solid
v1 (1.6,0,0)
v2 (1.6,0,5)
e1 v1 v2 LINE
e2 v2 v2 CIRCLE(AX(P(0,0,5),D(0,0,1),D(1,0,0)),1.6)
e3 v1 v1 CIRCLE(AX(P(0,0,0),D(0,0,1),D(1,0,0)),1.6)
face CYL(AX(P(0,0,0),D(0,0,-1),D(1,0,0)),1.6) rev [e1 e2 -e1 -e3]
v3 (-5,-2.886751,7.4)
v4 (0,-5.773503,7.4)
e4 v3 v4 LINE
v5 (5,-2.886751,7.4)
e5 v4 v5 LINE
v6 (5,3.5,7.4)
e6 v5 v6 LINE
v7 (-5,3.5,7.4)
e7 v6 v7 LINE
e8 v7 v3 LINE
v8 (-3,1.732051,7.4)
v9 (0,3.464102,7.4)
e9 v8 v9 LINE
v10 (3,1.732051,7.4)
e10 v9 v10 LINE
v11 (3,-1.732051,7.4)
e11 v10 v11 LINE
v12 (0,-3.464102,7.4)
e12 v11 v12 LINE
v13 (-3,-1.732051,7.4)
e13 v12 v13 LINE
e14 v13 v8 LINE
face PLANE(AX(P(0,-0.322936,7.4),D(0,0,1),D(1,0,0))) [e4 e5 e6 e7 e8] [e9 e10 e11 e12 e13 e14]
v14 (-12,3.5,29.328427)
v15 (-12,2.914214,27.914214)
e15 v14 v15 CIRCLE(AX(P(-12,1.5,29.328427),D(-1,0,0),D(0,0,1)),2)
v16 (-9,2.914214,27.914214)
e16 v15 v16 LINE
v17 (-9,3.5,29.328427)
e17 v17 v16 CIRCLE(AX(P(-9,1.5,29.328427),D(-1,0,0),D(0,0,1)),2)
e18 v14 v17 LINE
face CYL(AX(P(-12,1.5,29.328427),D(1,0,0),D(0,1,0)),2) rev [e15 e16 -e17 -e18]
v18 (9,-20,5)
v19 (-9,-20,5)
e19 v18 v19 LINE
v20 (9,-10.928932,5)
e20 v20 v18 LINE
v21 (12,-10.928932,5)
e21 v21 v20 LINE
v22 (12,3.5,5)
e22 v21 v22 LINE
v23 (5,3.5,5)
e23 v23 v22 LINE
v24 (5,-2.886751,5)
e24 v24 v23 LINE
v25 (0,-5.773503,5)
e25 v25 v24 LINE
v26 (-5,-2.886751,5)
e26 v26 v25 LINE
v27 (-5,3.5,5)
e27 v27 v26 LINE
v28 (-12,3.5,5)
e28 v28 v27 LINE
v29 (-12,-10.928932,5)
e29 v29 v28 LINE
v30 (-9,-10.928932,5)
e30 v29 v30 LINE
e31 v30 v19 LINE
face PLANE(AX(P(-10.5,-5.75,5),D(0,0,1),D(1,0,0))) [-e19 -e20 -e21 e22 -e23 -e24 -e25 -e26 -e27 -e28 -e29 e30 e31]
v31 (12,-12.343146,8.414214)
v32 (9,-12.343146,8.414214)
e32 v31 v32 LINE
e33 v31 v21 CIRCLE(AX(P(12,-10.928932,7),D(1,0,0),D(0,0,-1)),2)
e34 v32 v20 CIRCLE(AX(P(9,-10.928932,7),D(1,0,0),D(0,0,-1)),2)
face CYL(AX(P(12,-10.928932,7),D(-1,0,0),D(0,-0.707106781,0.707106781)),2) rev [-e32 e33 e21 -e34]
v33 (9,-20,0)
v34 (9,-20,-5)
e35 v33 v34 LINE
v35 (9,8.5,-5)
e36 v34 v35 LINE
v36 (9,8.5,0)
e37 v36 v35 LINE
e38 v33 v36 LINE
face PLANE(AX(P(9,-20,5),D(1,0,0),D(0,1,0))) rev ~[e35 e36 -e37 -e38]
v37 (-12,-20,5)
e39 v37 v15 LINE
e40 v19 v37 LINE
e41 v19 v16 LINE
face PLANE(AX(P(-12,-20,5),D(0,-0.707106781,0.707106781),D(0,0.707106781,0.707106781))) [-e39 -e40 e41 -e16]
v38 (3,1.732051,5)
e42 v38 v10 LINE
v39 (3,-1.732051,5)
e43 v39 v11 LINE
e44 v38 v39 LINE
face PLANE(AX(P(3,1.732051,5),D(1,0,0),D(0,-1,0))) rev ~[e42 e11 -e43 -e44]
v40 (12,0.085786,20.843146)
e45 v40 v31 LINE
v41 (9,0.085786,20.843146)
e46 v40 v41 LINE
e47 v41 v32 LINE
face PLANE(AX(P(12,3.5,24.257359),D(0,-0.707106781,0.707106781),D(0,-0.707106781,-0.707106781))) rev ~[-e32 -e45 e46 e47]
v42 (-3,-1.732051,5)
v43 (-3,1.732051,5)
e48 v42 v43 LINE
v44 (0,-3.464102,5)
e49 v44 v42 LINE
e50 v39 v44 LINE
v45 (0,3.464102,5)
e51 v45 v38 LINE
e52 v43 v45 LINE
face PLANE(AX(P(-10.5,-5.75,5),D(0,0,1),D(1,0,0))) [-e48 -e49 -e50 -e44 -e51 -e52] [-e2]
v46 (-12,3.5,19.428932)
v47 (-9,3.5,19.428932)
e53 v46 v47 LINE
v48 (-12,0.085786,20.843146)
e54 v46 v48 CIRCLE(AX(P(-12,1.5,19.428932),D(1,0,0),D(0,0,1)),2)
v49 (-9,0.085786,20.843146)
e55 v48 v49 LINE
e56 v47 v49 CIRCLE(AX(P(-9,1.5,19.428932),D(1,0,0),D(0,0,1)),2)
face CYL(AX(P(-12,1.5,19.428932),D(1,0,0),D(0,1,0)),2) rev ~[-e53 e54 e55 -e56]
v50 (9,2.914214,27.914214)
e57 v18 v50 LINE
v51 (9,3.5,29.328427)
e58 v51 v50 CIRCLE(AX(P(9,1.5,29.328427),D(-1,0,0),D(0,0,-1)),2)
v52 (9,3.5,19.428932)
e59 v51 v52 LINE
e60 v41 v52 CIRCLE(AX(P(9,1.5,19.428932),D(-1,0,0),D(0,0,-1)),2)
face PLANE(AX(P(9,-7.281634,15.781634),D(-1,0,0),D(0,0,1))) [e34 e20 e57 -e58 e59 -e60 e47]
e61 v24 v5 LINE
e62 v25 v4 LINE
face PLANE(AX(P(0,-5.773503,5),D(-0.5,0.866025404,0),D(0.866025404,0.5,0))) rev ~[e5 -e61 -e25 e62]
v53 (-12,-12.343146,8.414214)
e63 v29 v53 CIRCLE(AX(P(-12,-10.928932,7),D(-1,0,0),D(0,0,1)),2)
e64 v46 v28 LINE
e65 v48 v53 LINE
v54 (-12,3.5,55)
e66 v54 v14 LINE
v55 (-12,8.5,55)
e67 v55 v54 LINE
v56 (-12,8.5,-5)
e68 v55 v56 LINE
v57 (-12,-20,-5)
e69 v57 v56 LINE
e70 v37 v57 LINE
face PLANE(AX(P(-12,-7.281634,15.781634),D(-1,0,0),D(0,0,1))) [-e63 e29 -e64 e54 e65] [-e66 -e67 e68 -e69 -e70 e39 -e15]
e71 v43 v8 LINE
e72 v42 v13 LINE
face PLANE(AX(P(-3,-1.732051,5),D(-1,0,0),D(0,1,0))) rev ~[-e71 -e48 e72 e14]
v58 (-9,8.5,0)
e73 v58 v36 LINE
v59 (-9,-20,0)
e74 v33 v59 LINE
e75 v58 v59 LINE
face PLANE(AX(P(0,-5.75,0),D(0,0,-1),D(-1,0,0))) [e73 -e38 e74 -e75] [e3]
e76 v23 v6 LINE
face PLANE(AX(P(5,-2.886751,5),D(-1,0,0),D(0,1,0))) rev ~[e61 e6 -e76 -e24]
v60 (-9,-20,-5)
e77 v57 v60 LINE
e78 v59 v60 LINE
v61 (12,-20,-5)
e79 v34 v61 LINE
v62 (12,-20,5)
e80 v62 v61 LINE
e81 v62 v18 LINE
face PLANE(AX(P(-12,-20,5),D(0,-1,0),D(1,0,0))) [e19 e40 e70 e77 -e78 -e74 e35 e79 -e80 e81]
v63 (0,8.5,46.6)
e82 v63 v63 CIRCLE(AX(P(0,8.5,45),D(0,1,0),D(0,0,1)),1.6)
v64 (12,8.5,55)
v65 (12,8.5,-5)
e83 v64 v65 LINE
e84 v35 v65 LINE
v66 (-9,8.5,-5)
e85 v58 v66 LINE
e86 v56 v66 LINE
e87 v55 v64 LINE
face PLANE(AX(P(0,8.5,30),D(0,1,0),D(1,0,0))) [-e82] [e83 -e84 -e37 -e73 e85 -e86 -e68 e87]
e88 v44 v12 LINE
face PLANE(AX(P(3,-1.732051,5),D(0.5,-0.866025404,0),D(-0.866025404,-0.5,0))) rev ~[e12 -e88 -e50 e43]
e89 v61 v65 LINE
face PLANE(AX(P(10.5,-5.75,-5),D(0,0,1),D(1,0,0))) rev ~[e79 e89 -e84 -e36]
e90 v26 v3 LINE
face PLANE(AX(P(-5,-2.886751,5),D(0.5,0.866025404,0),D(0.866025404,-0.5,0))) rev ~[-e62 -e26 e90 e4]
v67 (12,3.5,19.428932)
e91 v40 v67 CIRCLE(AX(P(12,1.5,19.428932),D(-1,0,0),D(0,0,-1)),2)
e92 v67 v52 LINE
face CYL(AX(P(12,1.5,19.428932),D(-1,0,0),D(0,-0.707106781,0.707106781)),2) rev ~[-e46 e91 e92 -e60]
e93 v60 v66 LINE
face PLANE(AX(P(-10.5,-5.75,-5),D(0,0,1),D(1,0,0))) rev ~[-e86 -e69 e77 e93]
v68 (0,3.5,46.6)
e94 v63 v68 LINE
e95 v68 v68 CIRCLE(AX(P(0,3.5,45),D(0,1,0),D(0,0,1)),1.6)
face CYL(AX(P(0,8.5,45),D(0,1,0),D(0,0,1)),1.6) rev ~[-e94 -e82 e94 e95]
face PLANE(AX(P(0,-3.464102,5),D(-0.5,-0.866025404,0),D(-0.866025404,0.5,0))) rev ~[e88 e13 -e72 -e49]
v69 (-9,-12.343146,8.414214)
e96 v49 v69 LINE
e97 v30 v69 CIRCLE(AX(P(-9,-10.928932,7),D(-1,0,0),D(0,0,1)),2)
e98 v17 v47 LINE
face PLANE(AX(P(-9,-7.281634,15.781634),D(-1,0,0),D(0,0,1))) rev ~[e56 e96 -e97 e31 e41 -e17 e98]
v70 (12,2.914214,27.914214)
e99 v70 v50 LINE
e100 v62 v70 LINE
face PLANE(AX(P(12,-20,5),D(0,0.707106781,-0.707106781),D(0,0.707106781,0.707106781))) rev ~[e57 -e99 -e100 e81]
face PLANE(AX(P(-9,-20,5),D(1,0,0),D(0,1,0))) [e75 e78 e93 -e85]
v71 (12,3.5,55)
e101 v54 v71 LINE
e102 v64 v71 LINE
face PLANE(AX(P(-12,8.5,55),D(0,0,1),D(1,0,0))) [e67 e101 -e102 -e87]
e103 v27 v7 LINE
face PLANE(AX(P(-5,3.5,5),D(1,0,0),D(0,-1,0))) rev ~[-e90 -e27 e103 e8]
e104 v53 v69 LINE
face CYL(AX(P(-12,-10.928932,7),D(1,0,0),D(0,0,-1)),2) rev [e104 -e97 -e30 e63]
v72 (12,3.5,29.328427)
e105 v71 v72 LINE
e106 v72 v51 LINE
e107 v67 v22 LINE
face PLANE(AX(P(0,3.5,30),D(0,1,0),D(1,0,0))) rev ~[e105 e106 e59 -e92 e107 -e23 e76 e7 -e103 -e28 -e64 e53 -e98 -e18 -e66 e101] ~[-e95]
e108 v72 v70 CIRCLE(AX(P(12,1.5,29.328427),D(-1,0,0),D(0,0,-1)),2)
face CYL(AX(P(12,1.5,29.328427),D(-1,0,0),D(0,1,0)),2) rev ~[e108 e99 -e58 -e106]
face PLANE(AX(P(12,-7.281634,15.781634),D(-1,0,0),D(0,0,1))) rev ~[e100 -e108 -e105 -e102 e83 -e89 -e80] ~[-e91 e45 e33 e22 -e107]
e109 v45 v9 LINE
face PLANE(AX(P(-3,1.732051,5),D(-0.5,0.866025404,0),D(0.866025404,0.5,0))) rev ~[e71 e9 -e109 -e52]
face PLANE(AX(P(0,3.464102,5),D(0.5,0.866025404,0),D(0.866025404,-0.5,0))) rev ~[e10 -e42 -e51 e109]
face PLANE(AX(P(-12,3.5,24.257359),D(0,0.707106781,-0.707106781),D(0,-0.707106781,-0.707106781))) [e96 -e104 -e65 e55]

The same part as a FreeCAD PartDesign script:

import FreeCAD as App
import Part
import Sketcher
Q = App.Units.Quantity


def edges_at(feature, points):
    """Names of the edges that pass closest to the given points."""
    edges = feature.Shape.Edges
    near = lambda p: min(range(len(edges)), key=lambda i: edges[i].distToShape(Part.Vertex(*p))[0])
    return sorted({f"Edge{near(p) + 1}" for p in points})


def add_polygon(sketch, points):
    """Adds a closed chain of lines whose ends are joined by coincident constraints."""
    first, n = sketch.GeometryCount, len(points)
    for a, b in zip(points, points[1:] + points[:1]):
        sketch.addGeometry(Part.LineSegment(App.Vector(*a, 0), App.Vector(*b, 0)), False)
    for i in range(n):
        sketch.addConstraint(Sketcher.Constraint("Coincident", first + i, 2, first + (i + 1) % n, 1))

doc = App.newDocument("Part")
params = doc.addObject("Spreadsheet::Sheet", "Params")
for row, (alias, value) in enumerate([
    ("sketch1_diameter", "3.2 mm"),
    ("sketch1_width", "18 mm"),
    ("sketch1_height", "28.5 mm"),
    ("pad1_length", "5 mm"),
    ("sketch2_width", "3 mm"),
    ("sketch2_height", "28.5 mm"),
    ("pad2_length", "10 mm"),
    ("sketch3_diameter", "3.2 mm"),
    ("sketch3_width", "24 mm"),
    ("sketch3_height", "50 mm"),
    ("pad3_length", "5 mm"),
    ("pad4_length", "3 mm"),
    ("pad5_length", "3 mm"),
    ("sketch6_width", "10 mm"),
    ("pad6_length", "2.4 mm"),
    ("fillet_radius", "2 mm"),
], start=1):
    params.set(f"A{row}", alias)
    params.set(f"B{row}", "=" + value)
    params.setAlias(f"B{row}", alias)

body = doc.addObject("PartDesign::Body", "Body")

# Sketch on XY plane
sketch1 = doc.addObject("Sketcher::SketchObject", "Sketch")
body.addObject(sketch1)
sketch1.AttachmentSupport = (doc.XY_Plane, [""])
sketch1.MapMode = "FlatFace"
add_polygon(sketch1, [(-9, 8.5), (-9, -20), (9, -20), (9, 8.5)])  # lines 0-3
sketch1.addGeometry(Part.Circle(App.Vector(0, 0, 0), App.Vector(0, 0, 1), 1.6), False)  # 4
sketch1.addConstraint(Sketcher.Constraint("Vertical", 0))
sketch1.addConstraint(Sketcher.Constraint("Horizontal", 1))
sketch1.addConstraint(Sketcher.Constraint("Vertical", 2))
sketch1.addConstraint(Sketcher.Constraint("Horizontal", 3))
sketch1.addConstraint(Sketcher.Constraint("Coincident", 4, 3, -1, 1))
sketch1.addConstraint(Sketcher.Constraint("Diameter", 4, 3.2))
sketch1.addConstraint(Sketcher.Constraint("DistanceX", 1, 1, 1, 2, 18.0))
sketch1.addConstraint(Sketcher.Constraint("DistanceY", 0, 2, 0, 1, 28.5))
sketch1.addConstraint(Sketcher.Constraint("DistanceX", 0, 2, -1, 1, 9.0))
sketch1.addConstraint(Sketcher.Constraint("DistanceY", 0, 2, -1, 1, 20.0))
sketch1.setExpression("Constraints[9]", "Params.sketch1_diameter")
sketch1.setExpression("Constraints[10]", "Params.sketch1_width")
sketch1.setExpression("Constraints[11]", "Params.sketch1_height")
pad1 = doc.addObject("PartDesign::Pad", "Pad")
body.addObject(pad1)
pad1.Profile = sketch1
pad1.setExpression("Length", "Params.pad1_length")

# Sketch on XY plane
sketch2 = doc.addObject("Sketcher::SketchObject", "Sketch001")
body.addObject(sketch2)
sketch2.AttachmentSupport = (doc.XY_Plane, [""])
sketch2.MapMode = "FlatFace"
sketch2.AttachmentOffset = App.Placement(App.Vector(0, 0, 5), App.Rotation())
add_polygon(sketch2, [(-12, 8.5), (-12, -20), (-9, -20), (-9, 8.5)])  # lines 0-3
add_polygon(sketch2, [(9, 8.5), (9, -20), (12, -20), (12, 8.5)])  # lines 4-7
sketch2.addConstraint(Sketcher.Constraint("Vertical", 0))
sketch2.addConstraint(Sketcher.Constraint("Horizontal", 1))
sketch2.addConstraint(Sketcher.Constraint("Vertical", 2))
sketch2.addConstraint(Sketcher.Constraint("Horizontal", 3))
sketch2.addConstraint(Sketcher.Constraint("Vertical", 4))
sketch2.addConstraint(Sketcher.Constraint("Horizontal", 5))
sketch2.addConstraint(Sketcher.Constraint("Vertical", 6))
sketch2.addConstraint(Sketcher.Constraint("Horizontal", 7))
sketch2.addConstraint(Sketcher.Constraint("Symmetric", 1, 2, 4, 2, -2))
sketch2.addConstraint(Sketcher.Constraint("Symmetric", 3, 2, 6, 2, -2))
sketch2.addConstraint(Sketcher.Constraint("DistanceX", 1, 1, 1, 2, 3.0))
sketch2.addConstraint(Sketcher.Constraint("DistanceY", 0, 2, 0, 1, 28.5))
sketch2.addConstraint(Sketcher.Constraint("DistanceX", 0, 2, -1, 1, 12.0))
sketch2.addConstraint(Sketcher.Constraint("DistanceY", 0, 2, -1, 1, 20.0))
sketch2.setExpression("Constraints[18]", "Params.sketch2_width")
sketch2.setExpression("Constraints[19]", "Params.sketch2_height")
pad2 = doc.addObject("PartDesign::Pad", "Pad001")
body.addObject(pad2)
pad2.Profile = sketch2
pad2.setExpression("Length", "Params.pad2_length")
pad2.Reversed = True

# Sketch on XZ plane
sketch3 = doc.addObject("Sketcher::SketchObject", "Sketch002")
body.addObject(sketch3)
sketch3.AttachmentSupport = (doc.XZ_Plane, [""])
sketch3.MapMode = "FlatFace"
sketch3.AttachmentOffset = App.Placement(App.Vector(0, 0, -8.5), App.Rotation())
add_polygon(sketch3, [(-12, 5), (-12, 55), (12, 55), (12, 5)])  # lines 0-3
sketch3.addGeometry(Part.Circle(App.Vector(0, 45, 0), App.Vector(0, 0, 1), 1.6), False)  # 4
sketch3.addConstraint(Sketcher.Constraint("Vertical", 0))
sketch3.addConstraint(Sketcher.Constraint("Horizontal", 1))
sketch3.addConstraint(Sketcher.Constraint("Vertical", 2))
sketch3.addConstraint(Sketcher.Constraint("Horizontal", 3))
sketch3.addConstraint(Sketcher.Constraint("PointOnObject", 4, 3, -2))
sketch3.addConstraint(Sketcher.Constraint("Diameter", 4, 3.2))
sketch3.addConstraint(Sketcher.Constraint("DistanceX", 1, 1, 1, 2, 24.0))
sketch3.addConstraint(Sketcher.Constraint("DistanceY", 0, 1, 0, 2, 50.0))
sketch3.addConstraint(Sketcher.Constraint("DistanceY", -1, 1, 4, 3, 45.0))
sketch3.addConstraint(Sketcher.Constraint("DistanceX", 0, 2, -1, 1, 12.0))
sketch3.addConstraint(Sketcher.Constraint("DistanceY", -1, 1, 0, 2, 55.0))
sketch3.setExpression("Constraints[9]", "Params.sketch3_diameter")
sketch3.setExpression("Constraints[10]", "Params.sketch3_width")
sketch3.setExpression("Constraints[11]", "Params.sketch3_height")
pad3 = doc.addObject("PartDesign::Pad", "Pad002")
body.addObject(pad3)
pad3.Profile = sketch3
pad3.setExpression("Length", "Params.pad3_length")

# Sketch on YZ plane
sketch4 = doc.addObject("Sketcher::SketchObject", "Sketch003")
body.addObject(sketch4)
sketch4.AttachmentSupport = (doc.YZ_Plane, [""])
sketch4.MapMode = "FlatFace"
sketch4.AttachmentOffset = App.Placement(App.Vector(0, 0, -12), App.Rotation())
add_polygon(sketch4, [(3.5, 28.5), (3.5, 24.3), (-15.8, 5), (-20, 5)])  # lines 0-3
sketch4.addConstraint(Sketcher.Constraint("Vertical", 0))
sketch4.addConstraint(Sketcher.Constraint("Horizontal", 2))
sketch4.addConstraint(Sketcher.Constraint("Parallel", 1, 3))
sketch4.addConstraint(Sketcher.Constraint("Equal", 2, 0))
sketch4.addConstraint(Sketcher.Constraint("DistanceY", -1, 1, 1, 2, 5.0))
sketch4.addConstraint(Sketcher.Constraint("DistanceX", 2, 2, -1, 1, 20.0))
sketch4.addConstraint(Sketcher.Constraint("DistanceX", -1, 1, 0, 2, 3.5))
sketch4.addConstraint(Sketcher.Constraint("DistanceX", 2, 2, 2, 1, 4.242641))
pad4 = doc.addObject("PartDesign::Pad", "Pad003")
body.addObject(pad4)
pad4.Profile = sketch4
pad4.setExpression("Length", "Params.pad4_length")

# Sketch on YZ plane
sketch5 = doc.addObject("Sketcher::SketchObject", "Sketch004")
body.addObject(sketch5)
sketch5.AttachmentSupport = (doc.YZ_Plane, [""])
sketch5.MapMode = "FlatFace"
sketch5.AttachmentOffset = App.Placement(App.Vector(0, 0, 12), App.Rotation())
add_polygon(sketch5, [(3.5, 28.5), (3.5, 24.3), (-15.8, 5), (-20, 5)])  # lines 0-3
sketch5.addConstraint(Sketcher.Constraint("Vertical", 0))
sketch5.addConstraint(Sketcher.Constraint("Horizontal", 2))
sketch5.addConstraint(Sketcher.Constraint("Parallel", 1, 3))
sketch5.addConstraint(Sketcher.Constraint("Equal", 2, 0))
sketch5.addConstraint(Sketcher.Constraint("DistanceY", -1, 1, 1, 2, 5.0))
sketch5.addConstraint(Sketcher.Constraint("DistanceX", 2, 2, -1, 1, 20.0))
sketch5.addConstraint(Sketcher.Constraint("DistanceX", -1, 1, 0, 2, 3.5))
sketch5.addConstraint(Sketcher.Constraint("DistanceX", 2, 2, 2, 1, 4.242641))
pad5 = doc.addObject("PartDesign::Pad", "Pad004")
body.addObject(pad5)
pad5.Profile = sketch5
pad5.setExpression("Length", "Params.pad5_length")
pad5.Reversed = True

# Sketch on XY plane
sketch6 = doc.addObject("Sketcher::SketchObject", "Sketch005")
body.addObject(sketch6)
sketch6.AttachmentSupport = (doc.XY_Plane, [""])
sketch6.MapMode = "FlatFace"
sketch6.AttachmentOffset = App.Placement(App.Vector(0, 0, 5), App.Rotation())
add_polygon(sketch6, [(-5, 3.5), (-5, -2.9), (0, -5.8), (5, -2.9), (5, 3.5)])  # lines 0-4
add_polygon(sketch6, [(3, 1.7), (3, -1.7), (0, -3.5), (-3, -1.7), (-3, 1.7), (0, 3.5)])  # lines 5-10
sketch6.addConstraint(Sketcher.Constraint("Vertical", 0))
sketch6.addConstraint(Sketcher.Constraint("Vertical", 3))
sketch6.addConstraint(Sketcher.Constraint("Horizontal", 4))
sketch6.addConstraint(Sketcher.Constraint("Vertical", 5))
sketch6.addConstraint(Sketcher.Constraint("Vertical", 8))
sketch6.addConstraint(Sketcher.Constraint("Symmetric", 5, 2, 8, 2, -1, 1))
sketch6.addConstraint(Sketcher.Constraint("Symmetric", 6, 2, 9, 2, -1, 1))
sketch6.addConstraint(Sketcher.Constraint("Symmetric", 0, 2, 2, 2, -2))
sketch6.addConstraint(Sketcher.Constraint("PointOnObject", 1, 2, -2))
sketch6.addConstraint(Sketcher.Constraint("PointOnObject", 6, 2, -2))
sketch6.addConstraint(Sketcher.Constraint("Parallel", 2, 6))
sketch6.addConstraint(Sketcher.Constraint("Parallel", 1, 7))
sketch6.addConstraint(Sketcher.Constraint("Parallel", 7, 10))
sketch6.addConstraint(Sketcher.Constraint("DistanceX", 4, 2, 4, 1, 10.0))
sketch6.addConstraint(Sketcher.Constraint("Angle", 1, Q("-30 deg")))
sketch6.addConstraint(Sketcher.Constraint("DistanceX", -1, 1, 5, 2, 3.0))
sketch6.addConstraint(Sketcher.Constraint("DistanceY", -1, 1, 3, 2, 3.5))
sketch6.addConstraint(Sketcher.Constraint("DistanceY", 5, 2, 5, 1, 3.464102))
sketch6.addConstraint(Sketcher.Constraint("DistanceY", 0, 2, 0, 1, 6.386751))
sketch6.setExpression("Constraints[24]", "Params.sketch6_width")
pad6 = doc.addObject("PartDesign::Pad", "Pad005")
body.addObject(pad6)
pad6.Profile = sketch6
pad6.setExpression("Length", "Params.pad6_length")
doc.recompute()

fillet = doc.addObject("PartDesign::Fillet", "Fillet")
body.addObject(fillet)
fillet.Base = (pad6, edges_at(pad6, [
    (-10.5, 3.5, 24.257),
    (-10.5, 3.5, 28.5),
    (-10.5, -15.757, 5),
    (10.5, -15.757, 5),
    (10.5, 3.5, 28.5),
    (10.5, 3.5, 24.257),
]))
fillet.setExpression("Radius", "Params.fillet_radius")

doc.recompute()
